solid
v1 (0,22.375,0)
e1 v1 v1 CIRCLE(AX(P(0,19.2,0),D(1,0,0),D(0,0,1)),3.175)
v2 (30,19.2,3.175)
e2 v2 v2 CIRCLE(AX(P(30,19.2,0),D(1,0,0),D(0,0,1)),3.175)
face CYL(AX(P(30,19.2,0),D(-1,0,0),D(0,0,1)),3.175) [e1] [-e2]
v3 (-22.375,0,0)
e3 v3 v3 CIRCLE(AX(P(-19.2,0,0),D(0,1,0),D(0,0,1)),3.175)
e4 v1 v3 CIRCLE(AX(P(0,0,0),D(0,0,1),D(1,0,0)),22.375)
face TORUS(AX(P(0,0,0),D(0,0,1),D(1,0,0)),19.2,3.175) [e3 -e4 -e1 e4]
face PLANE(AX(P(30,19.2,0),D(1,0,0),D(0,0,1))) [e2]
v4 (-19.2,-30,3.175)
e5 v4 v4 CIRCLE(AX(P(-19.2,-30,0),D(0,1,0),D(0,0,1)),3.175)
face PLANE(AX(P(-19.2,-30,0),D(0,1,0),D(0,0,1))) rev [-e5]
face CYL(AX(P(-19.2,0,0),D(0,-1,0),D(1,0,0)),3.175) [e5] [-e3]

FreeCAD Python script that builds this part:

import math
import FreeCAD as App
import Part
import Sketcher
from FreeCAD import Vector

doc = App.newDocument("Part")
body = doc.addObject("PartDesign::Body", "Body")

# Sketch on YZ plane
sketch1 = body.newObject("Sketcher::SketchObject", "Sketch")
sketch1.AttachmentSupport = (doc.getObject("YZ_Plane"), [""])
sketch1.MapMode = "FlatFace"
sketch1.AttachmentOffset = App.Placement(Vector(0, 0, 30), App.Rotation())
sketch1.addGeometry(Part.Circle(Vector(19.2, 0, 0), Vector(0, 0, 1), 3.2), False)
sketch1.addConstraint(Sketcher.Constraint("PointOnObject", 0, 3, -1))
sketch1.addConstraint(Sketcher.Constraint("Diameter", 0, 6.35))
sketch1.addConstraint(Sketcher.Constraint("DistanceX", -1, 1, 0, 3, 19.2))

# Sketch on XY plane
sketch2 = body.newObject("Sketcher::SketchObject", "Sketch001")
sketch2.AttachmentSupport = (doc.getObject("XY_Plane"), [""])
sketch2.MapMode = "FlatFace"
sketch2.addGeometry(Part.LineSegment(Vector(30, 19, 0), Vector(0, 19, 0)), False)
sketch2.addGeometry(Part.ArcOfCircle(Part.Circle(Vector(0, 0, 0), Vector(0, 0, 1), 19), math.radians(90), math.radians(180)), False)
sketch2.addGeometry(Part.LineSegment(Vector(-19, 0, 0), Vector(-19, -30, 0)), False)
sketch2.addConstraint(Sketcher.Constraint("Tangent", 0, 2, 1, 1))
sketch2.addConstraint(Sketcher.Constraint("Tangent", 1, 2, 2, 1))
sketch2.addConstraint(Sketcher.Constraint("Horizontal", 0))
sketch2.addConstraint(Sketcher.Constraint("Vertical", 2))
sketch2.addConstraint(Sketcher.Constraint("Coincident", 1, 3, -1, 1))
sketch2.addConstraint(Sketcher.Constraint("Equal", 0, 2))
sketch2.addConstraint(Sketcher.Constraint("Radius", 1, 19.2))
sketch2.addConstraint(Sketcher.Constraint("DistanceX", 0, 2, 0, 1, 30.0))
doc.recompute()

additivepipe = body.newObject("PartDesign::AdditivePipe", "AdditivePipe")
additivepipe.Profile = sketch1
additivepipe.Spine = (sketch2, ["Edge1", "Edge2", "Edge3"])

doc.recompute()
